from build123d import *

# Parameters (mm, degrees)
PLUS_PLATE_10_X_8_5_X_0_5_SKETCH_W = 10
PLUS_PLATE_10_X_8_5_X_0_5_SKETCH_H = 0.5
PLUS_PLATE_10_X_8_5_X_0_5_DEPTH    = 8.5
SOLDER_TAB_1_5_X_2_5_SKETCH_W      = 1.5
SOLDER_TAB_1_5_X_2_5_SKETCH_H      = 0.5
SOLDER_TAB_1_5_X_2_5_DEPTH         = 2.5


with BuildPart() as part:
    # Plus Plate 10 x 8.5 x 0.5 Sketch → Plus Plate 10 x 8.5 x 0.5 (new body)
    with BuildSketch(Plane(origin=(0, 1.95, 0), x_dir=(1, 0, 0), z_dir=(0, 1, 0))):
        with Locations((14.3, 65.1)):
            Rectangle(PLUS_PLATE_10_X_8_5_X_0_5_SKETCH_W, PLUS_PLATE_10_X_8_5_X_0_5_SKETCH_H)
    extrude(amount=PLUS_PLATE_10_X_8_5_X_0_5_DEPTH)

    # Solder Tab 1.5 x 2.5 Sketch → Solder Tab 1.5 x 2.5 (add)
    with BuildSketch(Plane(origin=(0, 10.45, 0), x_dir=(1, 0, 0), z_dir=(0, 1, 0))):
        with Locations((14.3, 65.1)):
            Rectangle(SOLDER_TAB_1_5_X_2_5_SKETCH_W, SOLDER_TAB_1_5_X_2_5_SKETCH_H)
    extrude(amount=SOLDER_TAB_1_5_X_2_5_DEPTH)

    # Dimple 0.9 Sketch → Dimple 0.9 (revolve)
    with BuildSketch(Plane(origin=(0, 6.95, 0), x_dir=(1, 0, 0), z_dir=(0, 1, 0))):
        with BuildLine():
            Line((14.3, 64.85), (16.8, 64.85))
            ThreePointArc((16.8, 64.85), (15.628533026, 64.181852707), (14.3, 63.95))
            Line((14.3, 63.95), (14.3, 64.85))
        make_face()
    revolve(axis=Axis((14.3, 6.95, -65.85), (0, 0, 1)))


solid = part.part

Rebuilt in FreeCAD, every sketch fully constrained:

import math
import FreeCAD as App
import Part
import Sketcher

V = App.Vector
Q = App.Units.Quantity

doc = App.newDocument("Part")
body = doc.addObject("PartDesign::Body", "Body")

# Sketch on XZ plane
sketch1 = body.newObject("Sketcher::SketchObject", "Sketch")
sketch1.AttachmentSupport = (doc.getObject("XZ_Plane"), [""])
sketch1.MapMode = "FlatFace"
sketch1.AttachmentOffset = App.Placement(V(0, 0, -1.95), App.Rotation())
sketch1.addGeometry(Part.LineSegment(V(9.3, -65.35, 0), V(9.3, -64.85, 0)), False)
sketch1.addGeometry(Part.LineSegment(V(9.3, -64.85, 0), V(19.3, -64.85, 0)), False)
sketch1.addGeometry(Part.LineSegment(V(19.3, -64.85, 0), V(19.3, -65.35, 0)), False)
sketch1.addGeometry(Part.LineSegment(V(19.3, -65.35, 0), V(9.3, -65.35, 0)), False)
sketch1.addConstraint(Sketcher.Constraint("Coincident", 0, 2, 1, 1))
sketch1.addConstraint(Sketcher.Constraint("Coincident", 1, 2, 2, 1))
sketch1.addConstraint(Sketcher.Constraint("Coincident", 2, 2, 3, 1))
sketch1.addConstraint(Sketcher.Constraint("Coincident", 3, 2, 0, 1))
sketch1.addConstraint(Sketcher.Constraint("Vertical", 0))
sketch1.addConstraint(Sketcher.Constraint("Horizontal", 1))
sketch1.addConstraint(Sketcher.Constraint("Vertical", 2))
sketch1.addConstraint(Sketcher.Constraint("Horizontal", 3))
sketch1.addConstraint(Sketcher.Constraint("DistanceX", 1, 1, 1, 2, Q("10 mm")))
sketch1.addConstraint(Sketcher.Constraint("DistanceY", 0, 1, 0, 2, Q("0.5 mm")))
sketch1.addConstraint(Sketcher.Constraint("DistanceX", -1, 1, 0, 2, Q("9.3 mm")))
sketch1.addConstraint(Sketcher.Constraint("DistanceY", 0, 2, -1, 1, Q("64.85 mm")))
pad1 = body.newObject("PartDesign::Pad", "Pad")
pad1.Profile = sketch1
pad1.Length = 8.5
pad1.Reversed = True

# Sketch on XZ plane
sketch2 = body.newObject("Sketcher::SketchObject", "Sketch001")
sketch2.AttachmentSupport = (doc.getObject("XZ_Plane"), [""])
sketch2.MapMode = "FlatFace"
sketch2.AttachmentOffset = App.Placement(V(0, 0, -10.45), App.Rotation())
sketch2.addGeometry(Part.LineSegment(V(13.55, -65.35, 0), V(13.55, -64.85, 0)), False)
sketch2.addGeometry(Part.LineSegment(V(13.55, -64.85, 0), V(15.05, -64.85, 0)), False)
sketch2.addGeometry(Part.LineSegment(V(15.05, -64.85, 0), V(15.05, -65.35, 0)), False)
sketch2.addGeometry(Part.LineSegment(V(15.05, -65.35, 0), V(13.55, -65.35, 0)), False)
sketch2.addConstraint(Sketcher.Constraint("Coincident", 0, 2, 1, 1))
sketch2.addConstraint(Sketcher.Constraint("Coincident", 1, 2, 2, 1))
sketch2.addConstraint(Sketcher.Constraint("Coincident", 2, 2, 3, 1))
sketch2.addConstraint(Sketcher.Constraint("Coincident", 3, 2, 0, 1))
sketch2.addConstraint(Sketcher.Constraint("Vertical", 0))
sketch2.addConstraint(Sketcher.Constraint("Horizontal", 1))
sketch2.addConstraint(Sketcher.Constraint("Vertical", 2))
sketch2.addConstraint(Sketcher.Constraint("Horizontal", 3))
sketch2.addConstraint(Sketcher.Constraint("DistanceX", 1, 1, 1, 2, Q("1.5 mm")))
sketch2.addConstraint(Sketcher.Constraint("DistanceY", 0, 1, 0, 2, Q("0.5 mm")))
sketch2.addConstraint(Sketcher.Constraint("DistanceX", -1, 1, 0, 2, Q("13.55 mm")))
sketch2.addConstraint(Sketcher.Constraint("DistanceY", 0, 2, -1, 1, Q("64.85 mm")))
pad2 = body.newObject("PartDesign::Pad", "Pad001")
pad2.Profile = sketch2
pad2.Length = 2.5
pad2.Reversed = True

# Sketch on XZ plane
sketch3 = body.newObject("Sketcher::SketchObject", "Sketch002")
sketch3.AttachmentSupport = (doc.getObject("XZ_Plane"), [""])
sketch3.MapMode = "FlatFace"
sketch3.AttachmentOffset = App.Placement(V(0, 0, -6.95), App.Rotation())
sketch3.addGeometry(Part.LineSegment(V(16.8, -64.85, 0), V(14.3, -64.85, 0)), False)
sketch3.addGeometry(Part.LineSegment(V(14.3, -64.85, 0), V(14.3, -63.95, 0)), False)
sketch3.addGeometry(Part.ArcOfCircle(Part.Circle(V(14.3, -67.872222, 0), V(0, 0, 1), 3.922222), math.radians(50.402247), math.radians(90)), False)
sketch3.addGeometry(Part.LineSegment(V(14.3, -67.872222, 0), V(14.3, -63.95, 0)), True)  # axis
sketch3.addConstraint(Sketcher.Constraint("Coincident", 0, 2, 1, 1))
sketch3.addConstraint(Sketcher.Constraint("Coincident", 1, 2, 2, 2))
sketch3.addConstraint(Sketcher.Constraint("Coincident", 2, 1, 0, 1))
sketch3.addConstraint(Sketcher.Constraint("Horizontal", 0))
sketch3.addConstraint(Sketcher.Constraint("Vertical", 1))
sketch3.addConstraint(Sketcher.Constraint("Vertical", 3))
sketch3.addConstraint(Sketcher.Constraint("Coincident", 3, 1, 2, 3))
sketch3.addConstraint(Sketcher.Constraint("Coincident", 3, 2, 1, 2))
sketch3.addConstraint(Sketcher.Constraint("DistanceX", 0, 2, 0, 1, Q("2.5 mm")))
sketch3.addConstraint(Sketcher.Constraint("DistanceY", 1, 1, 1, 2, Q("0.9 mm")))
sketch3.addConstraint(Sketcher.Constraint("DistanceX", -1, 1, 2, 3, Q("14.3 mm")))
sketch3.addConstraint(Sketcher.Constraint("DistanceY", 0, 2, -1, 1, Q("64.85 mm")))
revolution = body.newObject("PartDesign::Revolution", "Revolution")
revolution.Profile = sketch3
revolution.ReferenceAxis = (sketch3, ["Axis0"])
revolution.Angle = 360

doc.recompute()
